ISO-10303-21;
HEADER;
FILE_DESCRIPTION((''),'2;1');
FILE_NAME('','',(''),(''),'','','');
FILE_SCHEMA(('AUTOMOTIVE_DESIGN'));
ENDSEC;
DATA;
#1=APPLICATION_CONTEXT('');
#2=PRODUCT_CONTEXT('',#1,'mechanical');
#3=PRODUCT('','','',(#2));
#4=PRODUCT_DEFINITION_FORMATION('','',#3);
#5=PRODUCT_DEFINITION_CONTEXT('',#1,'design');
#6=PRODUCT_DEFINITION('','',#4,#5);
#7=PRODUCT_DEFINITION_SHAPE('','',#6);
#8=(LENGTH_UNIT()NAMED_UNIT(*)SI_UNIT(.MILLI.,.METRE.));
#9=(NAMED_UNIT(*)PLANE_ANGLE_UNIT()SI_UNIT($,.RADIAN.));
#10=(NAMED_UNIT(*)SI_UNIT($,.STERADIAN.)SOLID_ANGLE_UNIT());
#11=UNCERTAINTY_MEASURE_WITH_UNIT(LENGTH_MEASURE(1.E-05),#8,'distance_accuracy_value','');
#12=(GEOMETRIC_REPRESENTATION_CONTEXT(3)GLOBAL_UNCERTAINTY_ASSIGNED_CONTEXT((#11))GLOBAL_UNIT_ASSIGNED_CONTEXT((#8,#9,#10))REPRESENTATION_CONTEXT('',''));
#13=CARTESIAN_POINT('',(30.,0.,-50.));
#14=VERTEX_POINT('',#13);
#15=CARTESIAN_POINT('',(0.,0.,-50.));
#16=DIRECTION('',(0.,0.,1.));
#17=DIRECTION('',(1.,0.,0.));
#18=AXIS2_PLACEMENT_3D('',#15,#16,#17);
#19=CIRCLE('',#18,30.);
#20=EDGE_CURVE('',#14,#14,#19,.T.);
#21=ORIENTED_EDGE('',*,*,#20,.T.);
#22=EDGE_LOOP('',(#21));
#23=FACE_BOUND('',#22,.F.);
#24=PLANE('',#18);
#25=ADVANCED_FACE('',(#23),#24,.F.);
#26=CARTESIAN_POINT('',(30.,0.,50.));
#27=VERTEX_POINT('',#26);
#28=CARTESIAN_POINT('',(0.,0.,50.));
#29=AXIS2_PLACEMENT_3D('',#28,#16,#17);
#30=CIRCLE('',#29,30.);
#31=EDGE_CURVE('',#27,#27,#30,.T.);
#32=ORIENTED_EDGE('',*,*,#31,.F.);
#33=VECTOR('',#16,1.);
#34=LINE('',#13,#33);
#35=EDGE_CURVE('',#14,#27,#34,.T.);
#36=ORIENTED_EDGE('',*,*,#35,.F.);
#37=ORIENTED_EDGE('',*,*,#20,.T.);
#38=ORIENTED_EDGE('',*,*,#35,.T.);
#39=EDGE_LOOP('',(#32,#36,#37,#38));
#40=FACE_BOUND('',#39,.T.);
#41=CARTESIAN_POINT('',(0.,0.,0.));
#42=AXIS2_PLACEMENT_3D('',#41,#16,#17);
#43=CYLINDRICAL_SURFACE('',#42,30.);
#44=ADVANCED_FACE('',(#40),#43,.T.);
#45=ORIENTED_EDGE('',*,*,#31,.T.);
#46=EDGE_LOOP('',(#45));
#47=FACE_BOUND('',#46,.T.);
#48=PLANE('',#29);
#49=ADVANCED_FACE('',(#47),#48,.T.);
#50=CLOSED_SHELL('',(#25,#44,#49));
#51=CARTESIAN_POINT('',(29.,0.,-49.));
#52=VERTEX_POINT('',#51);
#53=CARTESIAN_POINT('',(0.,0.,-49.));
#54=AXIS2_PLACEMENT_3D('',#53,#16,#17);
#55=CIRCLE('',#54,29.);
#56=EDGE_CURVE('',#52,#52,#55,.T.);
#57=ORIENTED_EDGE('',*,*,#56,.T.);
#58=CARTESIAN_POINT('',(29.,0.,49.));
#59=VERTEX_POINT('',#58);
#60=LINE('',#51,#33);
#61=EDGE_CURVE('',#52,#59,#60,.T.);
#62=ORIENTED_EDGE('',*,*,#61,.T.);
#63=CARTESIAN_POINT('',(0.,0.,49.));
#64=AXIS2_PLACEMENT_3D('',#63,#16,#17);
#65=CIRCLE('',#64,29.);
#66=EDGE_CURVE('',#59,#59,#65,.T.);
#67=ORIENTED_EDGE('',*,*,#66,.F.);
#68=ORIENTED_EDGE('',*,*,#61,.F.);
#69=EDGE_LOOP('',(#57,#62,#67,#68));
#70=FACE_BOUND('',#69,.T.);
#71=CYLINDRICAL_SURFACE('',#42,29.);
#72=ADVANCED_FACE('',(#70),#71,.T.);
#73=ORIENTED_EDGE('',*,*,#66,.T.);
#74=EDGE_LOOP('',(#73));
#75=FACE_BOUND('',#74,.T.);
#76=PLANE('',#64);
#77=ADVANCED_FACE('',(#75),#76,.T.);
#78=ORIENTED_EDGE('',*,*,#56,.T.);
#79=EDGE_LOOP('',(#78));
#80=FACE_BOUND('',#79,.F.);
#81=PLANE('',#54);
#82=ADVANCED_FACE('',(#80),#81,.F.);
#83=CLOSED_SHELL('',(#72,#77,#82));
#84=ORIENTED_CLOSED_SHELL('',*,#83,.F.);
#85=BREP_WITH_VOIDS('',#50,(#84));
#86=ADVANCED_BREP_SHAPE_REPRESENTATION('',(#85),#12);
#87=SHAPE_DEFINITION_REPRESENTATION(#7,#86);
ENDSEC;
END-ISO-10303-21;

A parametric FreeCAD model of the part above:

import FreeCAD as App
import Part
import Sketcher

V = App.Vector
Q = App.Units.Quantity

doc = App.newDocument("Part")
params = doc.addObject("Spreadsheet::Sheet", "Params")
for row, (alias, value) in enumerate([
    ("sketch1_diameter", "60 mm"),
    ("pad1_length", "100 mm"),
    ("sketch2_diameter", "58 mm"),
    ("pad2_length", "98 mm"),
], start=1):
    params.set(f"A{row}", alias)
    params.set(f"B{row}", "=" + value)
    params.setAlias(f"B{row}", alias)

body = doc.addObject("PartDesign::Body", "Body")

# Sketch on XY plane
sketch1 = body.newObject("Sketcher::SketchObject", "Sketch")
sketch1.AttachmentSupport = (doc.getObject("XY_Plane"), [""])
sketch1.MapMode = "FlatFace"
sketch1.addGeometry(Part.Circle(V(0, 0, 0), V(0, 0, 1), 30), False)
sketch1.addConstraint(Sketcher.Constraint("Coincident", 0, 3, -1, 1))
sketch1.addConstraint(Sketcher.Constraint("Diameter", 0, Q("60 mm")))
sketch1.setExpression("Constraints[1]", "Params.sketch1_diameter")
pad1 = body.newObject("PartDesign::Pad", "Pad")
pad1.Profile = sketch1
pad1.setExpression("Length", "Params.pad1_length")
pad1.Midplane = True
body2 = doc.addObject("PartDesign::Body", "Body001")

# Sketch on XY plane
sketch2 = body2.newObject("Sketcher::SketchObject", "Sketch001")
sketch2.AttachmentSupport = (doc.getObject("XY_Plane001"), [""])
sketch2.MapMode = "FlatFace"
sketch2.addGeometry(Part.Circle(V(0, 0, 0), V(0, 0, 1), 29), False)
sketch2.addConstraint(Sketcher.Constraint("Coincident", 0, 3, -1, 1))
sketch2.addConstraint(Sketcher.Constraint("Diameter", 0, Q("58 mm")))
sketch2.setExpression("Constraints[1]", "Params.sketch2_diameter")
pad2 = body2.newObject("PartDesign::Pad", "Pad001")
pad2.Profile = sketch2
pad2.setExpression("Length", "Params.pad2_length")
pad2.Midplane = True
doc.recompute()

boolean = body.newObject("PartDesign::Boolean", "Boolean")
boolean.Type = "Cut"
boolean.addObjects([body2])

doc.recompute()
